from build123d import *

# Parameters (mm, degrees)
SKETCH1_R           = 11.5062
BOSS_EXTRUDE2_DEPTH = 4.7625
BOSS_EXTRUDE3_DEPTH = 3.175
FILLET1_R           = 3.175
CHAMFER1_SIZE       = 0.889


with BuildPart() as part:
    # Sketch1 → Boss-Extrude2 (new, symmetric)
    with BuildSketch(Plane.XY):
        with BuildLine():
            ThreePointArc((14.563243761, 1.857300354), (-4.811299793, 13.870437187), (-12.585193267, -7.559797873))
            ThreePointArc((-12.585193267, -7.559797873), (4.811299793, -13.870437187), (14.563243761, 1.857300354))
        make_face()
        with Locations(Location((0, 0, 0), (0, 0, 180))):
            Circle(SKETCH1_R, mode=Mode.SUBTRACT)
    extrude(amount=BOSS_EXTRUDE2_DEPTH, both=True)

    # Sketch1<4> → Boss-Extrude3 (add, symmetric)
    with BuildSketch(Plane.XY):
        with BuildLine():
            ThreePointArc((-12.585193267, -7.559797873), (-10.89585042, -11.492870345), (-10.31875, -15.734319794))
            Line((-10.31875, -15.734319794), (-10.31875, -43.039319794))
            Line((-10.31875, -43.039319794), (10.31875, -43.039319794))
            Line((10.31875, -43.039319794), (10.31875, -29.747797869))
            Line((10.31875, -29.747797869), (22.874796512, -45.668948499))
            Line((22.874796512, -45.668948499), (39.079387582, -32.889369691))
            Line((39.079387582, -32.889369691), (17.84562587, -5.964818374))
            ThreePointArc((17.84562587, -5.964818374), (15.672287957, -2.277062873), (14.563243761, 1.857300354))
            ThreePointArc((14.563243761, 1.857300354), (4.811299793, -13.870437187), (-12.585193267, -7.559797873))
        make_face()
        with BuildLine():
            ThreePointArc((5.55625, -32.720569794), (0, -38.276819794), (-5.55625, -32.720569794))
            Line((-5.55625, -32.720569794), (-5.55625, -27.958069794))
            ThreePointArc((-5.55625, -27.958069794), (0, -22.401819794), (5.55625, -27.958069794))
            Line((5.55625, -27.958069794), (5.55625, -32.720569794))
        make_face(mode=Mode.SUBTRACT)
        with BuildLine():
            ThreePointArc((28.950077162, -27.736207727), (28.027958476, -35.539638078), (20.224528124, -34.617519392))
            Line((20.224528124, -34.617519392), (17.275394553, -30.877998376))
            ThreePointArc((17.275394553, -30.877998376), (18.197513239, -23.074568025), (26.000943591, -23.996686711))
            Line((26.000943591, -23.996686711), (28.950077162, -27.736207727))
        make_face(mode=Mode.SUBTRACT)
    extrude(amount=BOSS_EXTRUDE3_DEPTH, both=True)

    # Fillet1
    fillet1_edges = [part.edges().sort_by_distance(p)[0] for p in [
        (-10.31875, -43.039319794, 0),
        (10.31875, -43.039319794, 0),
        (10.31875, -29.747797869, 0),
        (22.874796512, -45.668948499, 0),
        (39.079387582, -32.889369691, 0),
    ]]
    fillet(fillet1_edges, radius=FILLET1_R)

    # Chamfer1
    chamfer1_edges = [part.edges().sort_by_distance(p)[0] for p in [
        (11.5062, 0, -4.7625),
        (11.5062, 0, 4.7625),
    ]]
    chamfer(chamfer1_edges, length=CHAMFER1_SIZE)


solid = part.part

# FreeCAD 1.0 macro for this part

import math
import FreeCAD as App
import Part
import Sketcher
from FreeCAD import Vector
Q = App.Units.Quantity


def edges_at(feature, points):
    """Names of the edges that pass closest to the given points."""
    edges = feature.Shape.Edges
    near = lambda p: min(range(len(edges)), key=lambda i: edges[i].distToShape(Part.Vertex(*p))[0])
    return sorted({f"Edge{near(p) + 1}" for p in points})

doc = App.newDocument("Part")
params = doc.addObject("Spreadsheet::Sheet", "Params")
for row, (alias, value) in enumerate([
    ("sketch1_diameter", "0.906 in"),
    ("sketch1_radius", "0.578 in"),
    ("pad1_length", "0.375 in"),
    ("sketch2_radius", "0.625 in"),
    ("sketch2_radius2", "0.578 in"),
    ("sketch2_radius3", "0.21875 in"),
    ("sketch2_length", "1.35 in"),
    ("sketch2_width", "0.8125 in"),
    ("pad2_length", "0.25 in"),
    ("fillet_radius", "0.125 in"),
    ("chamfer_size", "0.035 in"),
], start=1):
    params.set(f"A{row}", alias)
    params.set(f"B{row}", "=" + value)
    params.setAlias(f"B{row}", alias)

body = doc.addObject("PartDesign::Body", "Body")

sketch1 = body.newObject("Sketcher::SketchObject", "Sketch")
sketch1.AttachmentSupport = (doc.getObject("XY_Plane"), [""])
sketch1.MapMode = "FlatFace"
sketch1.addGeometry([
    Part.ArcOfCircle(Part.Circle(Vector(0, 0, 0), Vector(0, 0, 1), 15), math.radians(7), math.radians(211)),
    Part.ArcOfCircle(Part.Circle(Vector(0, 0, 0), Vector(0, 0, 1), 15), math.radians(-149), math.radians(7)),
    Part.Circle(Vector(0, 0, 0), Vector(0, 0, 1), 12),
], False)
sketch1.addConstraint([
    Sketcher.Constraint("Tangent", 0, 1, 1, 2),
    Sketcher.Constraint("Coincident", 1, 1, 0, 2),
    Sketcher.Constraint("Coincident", 0, 3, -1, 1),
    Sketcher.Constraint("Coincident", 2, 3, -1, 1),
    Sketcher.Constraint("Diameter", 2, Q("0.906 in")),
    Sketcher.Constraint("Radius", 0, Q("0.578 in")),
    Sketcher.Constraint("DistanceY", -1, 1, 0, 1, Q("1.8573 mm")),
    Sketcher.Constraint("DistanceY", 1, 1, 0, 1, Q("9.417098 mm")),
])
sketch1.setExpression("Constraints[4]", "Params.sketch1_diameter")
sketch1.setExpression("Constraints[5]", "Params.sketch1_radius")
pad1 = body.newObject("PartDesign::Pad", "Pad")
pad1.Profile = sketch1
pad1.setExpression("Length", "Params.pad1_length")
pad1.Midplane = True

sketch2 = body.newObject("Sketcher::SketchObject", "Sketch001")
sketch2.AttachmentSupport = (doc.getObject("XY_Plane"), [""])
sketch2.MapMode = "FlatFace"
sketch2.addGeometry([
    Part.ArcOfCircle(Part.Circle(Vector(-26.2, -15.7, 0), Vector(0, 0, 1), 15.9), math.radians(0), math.radians(31)),
    Part.LineSegment(Vector(-10.3, -15.7, 0), Vector(-10.3, -43, 0)),
    Part.LineSegment(Vector(-10.3, -43, 0), Vector(10.3, -43, 0)),
    Part.LineSegment(Vector(10.3, -43, 0), Vector(10.3, -29.7, 0)),
    Part.LineSegment(Vector(10.3, -29.7, 0), Vector(22.9, -45.7, 0)),
    Part.LineSegment(Vector(22.9, -45.7, 0), Vector(39.1, -32.9, 0)),
    Part.LineSegment(Vector(39.1, -32.9, 0), Vector(17.8, -6, 0)),
    Part.ArcOfCircle(Part.Circle(Vector(30.3, 3.9, 0), Vector(0, 0, 1), 15.9), math.radians(-173), math.radians(-142)),
    Part.ArcOfCircle(Part.Circle(Vector(0, 0, 0), Vector(0, 0, 1), 14.7), math.radians(-149), math.radians(7)),
    Part.LineSegment(Vector(5.6, -28, 0), Vector(5.6, -32.7, 0)),
    Part.ArcOfCircle(Part.Circle(Vector(0, -32.7, 0), Vector(0, 0, 1), 5.6), math.radians(180), math.radians(360)),
    Part.LineSegment(Vector(-5.6, -32.7, 0), Vector(-5.6, -28, 0)),
    Part.ArcOfCircle(Part.Circle(Vector(0, -28, 0), Vector(0, 0, 1), 5.6), math.radians(0), math.radians(180)),
    Part.LineSegment(Vector(26, -24, 0), Vector(29, -27.7, 0)),
    Part.ArcOfCircle(Part.Circle(Vector(24.6, -31.2, 0), Vector(0, 0, 1), 5.6), math.radians(-142), math.radians(38)),
    Part.LineSegment(Vector(20.2, -34.6, 0), Vector(17.3, -30.9, 0)),
    Part.ArcOfCircle(Part.Circle(Vector(21.6, -27.4, 0), Vector(0, 0, 1), 5.6), math.radians(38), math.radians(218)),
], False)
sketch2.addConstraint([
    Sketcher.Constraint("Tangent", 0, 1, 1, 1),
    Sketcher.Constraint("Coincident", 1, 2, 2, 1),
    Sketcher.Constraint("Coincident", 2, 2, 3, 1),
    Sketcher.Constraint("Coincident", 3, 2, 4, 1),
    Sketcher.Constraint("Coincident", 4, 2, 5, 1),
    Sketcher.Constraint("Coincident", 5, 2, 6, 1),
    Sketcher.Constraint("Tangent", 6, 2, 7, 2),
    Sketcher.Constraint("Tangent", 7, 1, 8, 2),
    Sketcher.Constraint("Tangent", 8, 1, 0, 2),
    Sketcher.Constraint("Tangent", 9, 2, 10, 2),
    Sketcher.Constraint("Tangent", 10, 1, 11, 1),
    Sketcher.Constraint("Tangent", 11, 2, 12, 2),
    Sketcher.Constraint("Tangent", 12, 1, 9, 1),
    Sketcher.Constraint("Tangent", 13, 2, 14, 2),
    Sketcher.Constraint("Tangent", 14, 1, 15, 1),
    Sketcher.Constraint("Tangent", 15, 2, 16, 2),
    Sketcher.Constraint("Tangent", 16, 1, 13, 1),
    Sketcher.Constraint("Vertical", 1),
    Sketcher.Constraint("Horizontal", 2),
    Sketcher.Constraint("Vertical", 3),
    Sketcher.Constraint("Vertical", 9),
    Sketcher.Constraint("Vertical", 11),
    Sketcher.Constraint("Coincident", 8, 3, -1, 1),
    Sketcher.Constraint("Equal", 0, 7),
    Sketcher.Constraint("Equal", 12, 14),
    Sketcher.Constraint("Equal", 14, 16),
    Sketcher.Constraint("PointOnObject", 10, 3, -2),
    Sketcher.Constraint("Perpendicular", 4, 5),
    Sketcher.Constraint("Perpendicular", 5, 6),
    Sketcher.Constraint("Parallel", 6, 13),
    Sketcher.Constraint("Radius", 0, Q("0.625 in")),
    Sketcher.Constraint("Radius", 8, Q("0.578 in")),
    Sketcher.Constraint("Radius", 10, Q("0.21875 in")),
    Sketcher.Constraint("Distance", 6, Q("1.35 in")),
    Sketcher.Constraint("DistanceX", 2, 1, 2, 2, Q("0.8125 in")),
    Sketcher.Constraint("DistanceY", 1, 2, 1, 1, Q("1.075 in")),
    Sketcher.Constraint("DistanceY", 9, 2, 9, 1, Q("0.1875 in")),
    Sketcher.Constraint("Distance", 5, Q("0.8125 in")),
    Sketcher.Constraint("Distance", 13, Q("0.1875 in")),
    Sketcher.Constraint("DistanceX", 0, 3, -1, 1, Q("1.03125 in")),
    Sketcher.Constraint("DistanceY", 1, 2, 10, 3, Q("0.40625 in")),
    Sketcher.Constraint("DistanceY", 3, 1, 3, 2, Q("13.291522 mm")),
    Sketcher.Constraint("DistanceY", -1, 1, 7, 1, Q("1.8573 mm")),
    Sketcher.Constraint("DistanceY", 15, 2, -1, 1, Q("30.877998 mm")),
    Sketcher.Constraint("DistanceX", -1, 1, 16, 3, Q("21.638169 mm")),
])
sketch2.setExpression("Constraints[30]", "Params.sketch2_radius")
sketch2.setExpression("Constraints[31]", "Params.sketch2_radius2")
sketch2.setExpression("Constraints[32]", "Params.sketch2_radius3")
sketch2.setExpression("Constraints[33]", "Params.sketch2_length")
sketch2.setExpression("Constraints[34]", "Params.sketch2_width")
pad2 = body.newObject("PartDesign::Pad", "Pad001")
pad2.Profile = sketch2
pad2.setExpression("Length", "Params.pad2_length")
pad2.Midplane = True
doc.recompute()

fillet = body.newObject("PartDesign::Fillet", "Fillet")
fillet.Base = (pad2, edges_at(pad2, [
    (-10.319, -43.039, 0),
    (10.319, -43.039, 0),
    (10.319, -29.748, 0),
    (22.875, -45.669, 0),
    (39.079, -32.889, 0),
]))
fillet.setExpression("Radius", "Params.fillet_radius")
doc.recompute()

chamfer = body.newObject("PartDesign::Chamfer", "Chamfer")
chamfer.Base = (fillet, edges_at(fillet, [(11.506, 0, -4.763), (11.506, 0, 4.763)]))
chamfer.setExpression("Size", "Params.chamfer_size")

doc.recompute()
